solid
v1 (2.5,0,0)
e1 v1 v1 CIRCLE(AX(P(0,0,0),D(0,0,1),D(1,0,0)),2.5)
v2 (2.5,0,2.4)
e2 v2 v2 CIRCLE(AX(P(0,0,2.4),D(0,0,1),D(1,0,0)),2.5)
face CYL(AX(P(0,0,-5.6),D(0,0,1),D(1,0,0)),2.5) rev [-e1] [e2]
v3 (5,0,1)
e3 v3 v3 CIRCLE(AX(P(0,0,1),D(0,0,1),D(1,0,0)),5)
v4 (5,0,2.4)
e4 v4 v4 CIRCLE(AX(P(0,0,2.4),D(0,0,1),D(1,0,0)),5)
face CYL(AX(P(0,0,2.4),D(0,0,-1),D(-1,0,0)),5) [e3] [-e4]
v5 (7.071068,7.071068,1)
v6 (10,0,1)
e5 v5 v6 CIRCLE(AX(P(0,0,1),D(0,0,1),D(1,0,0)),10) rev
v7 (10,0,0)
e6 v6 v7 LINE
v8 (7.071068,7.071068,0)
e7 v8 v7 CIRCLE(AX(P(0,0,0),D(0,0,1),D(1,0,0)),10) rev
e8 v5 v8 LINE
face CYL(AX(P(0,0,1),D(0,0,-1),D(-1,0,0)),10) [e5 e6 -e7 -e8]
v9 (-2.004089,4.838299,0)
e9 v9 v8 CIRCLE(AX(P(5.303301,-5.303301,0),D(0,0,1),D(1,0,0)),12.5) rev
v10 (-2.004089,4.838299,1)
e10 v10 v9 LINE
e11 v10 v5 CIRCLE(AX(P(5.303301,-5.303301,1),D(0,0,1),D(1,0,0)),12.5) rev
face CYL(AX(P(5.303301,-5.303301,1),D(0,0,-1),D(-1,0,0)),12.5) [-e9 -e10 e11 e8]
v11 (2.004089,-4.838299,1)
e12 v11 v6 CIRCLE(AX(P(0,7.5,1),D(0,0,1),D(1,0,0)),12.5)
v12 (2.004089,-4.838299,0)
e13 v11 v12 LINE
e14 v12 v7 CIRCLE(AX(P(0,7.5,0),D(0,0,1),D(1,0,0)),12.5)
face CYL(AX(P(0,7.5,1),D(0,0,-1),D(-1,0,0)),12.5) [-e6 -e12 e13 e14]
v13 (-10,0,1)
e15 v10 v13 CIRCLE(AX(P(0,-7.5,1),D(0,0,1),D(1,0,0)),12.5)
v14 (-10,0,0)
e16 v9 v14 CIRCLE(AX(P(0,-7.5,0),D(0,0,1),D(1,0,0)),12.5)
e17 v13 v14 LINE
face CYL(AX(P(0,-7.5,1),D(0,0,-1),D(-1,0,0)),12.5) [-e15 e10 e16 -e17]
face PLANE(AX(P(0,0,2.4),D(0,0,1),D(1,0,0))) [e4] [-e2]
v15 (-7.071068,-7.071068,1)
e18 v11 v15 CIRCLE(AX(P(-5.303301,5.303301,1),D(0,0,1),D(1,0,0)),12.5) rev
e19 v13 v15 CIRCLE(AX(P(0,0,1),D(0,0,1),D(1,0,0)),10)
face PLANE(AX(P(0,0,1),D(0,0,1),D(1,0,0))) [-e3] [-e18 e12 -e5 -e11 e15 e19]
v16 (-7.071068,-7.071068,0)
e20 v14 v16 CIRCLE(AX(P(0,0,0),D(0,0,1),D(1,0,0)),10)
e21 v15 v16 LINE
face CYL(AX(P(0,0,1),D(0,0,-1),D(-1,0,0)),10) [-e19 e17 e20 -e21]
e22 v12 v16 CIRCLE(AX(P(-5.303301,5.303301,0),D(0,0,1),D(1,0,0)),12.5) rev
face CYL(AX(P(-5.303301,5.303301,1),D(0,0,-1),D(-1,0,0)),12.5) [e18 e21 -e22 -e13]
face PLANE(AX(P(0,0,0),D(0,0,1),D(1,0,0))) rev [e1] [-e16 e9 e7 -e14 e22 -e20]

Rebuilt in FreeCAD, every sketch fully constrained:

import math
import FreeCAD as App
import Part
import Sketcher
from FreeCAD import Vector

doc = App.newDocument("Part")
body = doc.addObject("PartDesign::Body", "Body")

sketch1 = doc.addObject("Sketcher::SketchObject", "Sketch")
body.addObject(sketch1)
sketch1.AttachmentSupport = (doc.XY_Plane, [""])
sketch1.MapMode = "FlatFace"
sketch1.addGeometry([
    Part.ArcOfCircle(Part.Circle(Vector(0, -8, 0), Vector(0, 0, 1), 13), math.radians(99), math.radians(143)),
    Part.ArcOfCircle(Part.Circle(Vector(0, 0, 0), Vector(0, 0, 1), 10), math.radians(180), math.radians(225)),
    Part.ArcOfCircle(Part.Circle(Vector(-5, 5, 0), Vector(0, 0, 1), 13), math.radians(-98), math.radians(-54)),
    Part.ArcOfCircle(Part.Circle(Vector(0, 8, 0), Vector(0, 0, 1), 13), math.radians(-81), math.radians(-37)),
    Part.ArcOfCircle(Part.Circle(Vector(0, 0, 0), Vector(0, 0, 1), 10), math.radians(0), math.radians(45)),
    Part.ArcOfCircle(Part.Circle(Vector(5, -5, 0), Vector(0, 0, 1), 13), math.radians(82), math.radians(126)),
], False)
sketch1.addConstraint([
    Sketcher.Constraint("Coincident", 0, 2, 1, 1),
    Sketcher.Constraint("Coincident", 1, 2, 2, 1),
    Sketcher.Constraint("Coincident", 2, 2, 3, 1),
    Sketcher.Constraint("Coincident", 3, 2, 4, 1),
    Sketcher.Constraint("Coincident", 4, 2, 5, 1),
    Sketcher.Constraint("Coincident", 5, 2, 0, 1),
    Sketcher.Constraint("Coincident", 1, 3, -1, 1),
    Sketcher.Constraint("Coincident", 4, 3, -1, 1),
    Sketcher.Constraint("Equal", 0, 2),
    Sketcher.Constraint("Equal", 2, 3),
    Sketcher.Constraint("Equal", 1, 4),
    Sketcher.Constraint("Equal", 3, 5),
    Sketcher.Constraint("Symmetric", 0, 3, 3, 3, -1, 1),
    Sketcher.Constraint("Symmetric", 2, 3, 5, 3, -1, 1),
    Sketcher.Constraint("PointOnObject", 0, 3, -2),
    Sketcher.Constraint("PointOnObject", 0, 2, -1),
    Sketcher.Constraint("Radius", 1, 10.0),
    Sketcher.Constraint("Radius", 0, 12.5),
    Sketcher.Constraint("DistanceY", 5, 3, 2, 2, 0.465002),
    Sketcher.Constraint("DistanceX", 2, 3, -1, 1, 5.303301),
])
pad1 = doc.addObject("PartDesign::Pad", "Pad")
body.addObject(pad1)
pad1.Profile = sketch1
pad1.Length = 1

sketch2 = doc.addObject("Sketcher::SketchObject", "Sketch001")
body.addObject(sketch2)
sketch2.AttachmentSupport = (doc.XY_Plane, [""])
sketch2.MapMode = "FlatFace"
sketch2.AttachmentOffset = App.Placement(Vector(0, 0, 1), App.Rotation())
sketch2.addGeometry(Part.Circle(Vector(0, 0, 0), Vector(0, 0, 1), 5), False)
sketch2.addConstraint([
    Sketcher.Constraint("Coincident", 0, 3, -1, 1),
    Sketcher.Constraint("Diameter", 0, 10.0),
])
pad2 = doc.addObject("PartDesign::Pad", "Pad001")
body.addObject(pad2)
pad2.Profile = sketch2
pad2.Length = 1.4

sketch3 = doc.addObject("Sketcher::SketchObject", "Sketch002")
body.addObject(sketch3)
sketch3.AttachmentSupport = (doc.XY_Plane, [""])
sketch3.MapMode = "FlatFace"
sketch3.AttachmentOffset = App.Placement(Vector(0, 0, 2.4), App.Rotation())
sketch3.addGeometry(Part.Circle(Vector(0, 0, 0), Vector(0, 0, 1), 2.5), False)
sketch3.addConstraint([
    Sketcher.Constraint("Coincident", 0, 3, -1, 1),
    Sketcher.Constraint("Diameter", 0, 5.0),
])
pocket1 = doc.addObject("PartDesign::Pocket", "Pocket")
body.addObject(pocket1)
pocket1.Profile = sketch3
pocket1.Length = 8

doc.recompute()
